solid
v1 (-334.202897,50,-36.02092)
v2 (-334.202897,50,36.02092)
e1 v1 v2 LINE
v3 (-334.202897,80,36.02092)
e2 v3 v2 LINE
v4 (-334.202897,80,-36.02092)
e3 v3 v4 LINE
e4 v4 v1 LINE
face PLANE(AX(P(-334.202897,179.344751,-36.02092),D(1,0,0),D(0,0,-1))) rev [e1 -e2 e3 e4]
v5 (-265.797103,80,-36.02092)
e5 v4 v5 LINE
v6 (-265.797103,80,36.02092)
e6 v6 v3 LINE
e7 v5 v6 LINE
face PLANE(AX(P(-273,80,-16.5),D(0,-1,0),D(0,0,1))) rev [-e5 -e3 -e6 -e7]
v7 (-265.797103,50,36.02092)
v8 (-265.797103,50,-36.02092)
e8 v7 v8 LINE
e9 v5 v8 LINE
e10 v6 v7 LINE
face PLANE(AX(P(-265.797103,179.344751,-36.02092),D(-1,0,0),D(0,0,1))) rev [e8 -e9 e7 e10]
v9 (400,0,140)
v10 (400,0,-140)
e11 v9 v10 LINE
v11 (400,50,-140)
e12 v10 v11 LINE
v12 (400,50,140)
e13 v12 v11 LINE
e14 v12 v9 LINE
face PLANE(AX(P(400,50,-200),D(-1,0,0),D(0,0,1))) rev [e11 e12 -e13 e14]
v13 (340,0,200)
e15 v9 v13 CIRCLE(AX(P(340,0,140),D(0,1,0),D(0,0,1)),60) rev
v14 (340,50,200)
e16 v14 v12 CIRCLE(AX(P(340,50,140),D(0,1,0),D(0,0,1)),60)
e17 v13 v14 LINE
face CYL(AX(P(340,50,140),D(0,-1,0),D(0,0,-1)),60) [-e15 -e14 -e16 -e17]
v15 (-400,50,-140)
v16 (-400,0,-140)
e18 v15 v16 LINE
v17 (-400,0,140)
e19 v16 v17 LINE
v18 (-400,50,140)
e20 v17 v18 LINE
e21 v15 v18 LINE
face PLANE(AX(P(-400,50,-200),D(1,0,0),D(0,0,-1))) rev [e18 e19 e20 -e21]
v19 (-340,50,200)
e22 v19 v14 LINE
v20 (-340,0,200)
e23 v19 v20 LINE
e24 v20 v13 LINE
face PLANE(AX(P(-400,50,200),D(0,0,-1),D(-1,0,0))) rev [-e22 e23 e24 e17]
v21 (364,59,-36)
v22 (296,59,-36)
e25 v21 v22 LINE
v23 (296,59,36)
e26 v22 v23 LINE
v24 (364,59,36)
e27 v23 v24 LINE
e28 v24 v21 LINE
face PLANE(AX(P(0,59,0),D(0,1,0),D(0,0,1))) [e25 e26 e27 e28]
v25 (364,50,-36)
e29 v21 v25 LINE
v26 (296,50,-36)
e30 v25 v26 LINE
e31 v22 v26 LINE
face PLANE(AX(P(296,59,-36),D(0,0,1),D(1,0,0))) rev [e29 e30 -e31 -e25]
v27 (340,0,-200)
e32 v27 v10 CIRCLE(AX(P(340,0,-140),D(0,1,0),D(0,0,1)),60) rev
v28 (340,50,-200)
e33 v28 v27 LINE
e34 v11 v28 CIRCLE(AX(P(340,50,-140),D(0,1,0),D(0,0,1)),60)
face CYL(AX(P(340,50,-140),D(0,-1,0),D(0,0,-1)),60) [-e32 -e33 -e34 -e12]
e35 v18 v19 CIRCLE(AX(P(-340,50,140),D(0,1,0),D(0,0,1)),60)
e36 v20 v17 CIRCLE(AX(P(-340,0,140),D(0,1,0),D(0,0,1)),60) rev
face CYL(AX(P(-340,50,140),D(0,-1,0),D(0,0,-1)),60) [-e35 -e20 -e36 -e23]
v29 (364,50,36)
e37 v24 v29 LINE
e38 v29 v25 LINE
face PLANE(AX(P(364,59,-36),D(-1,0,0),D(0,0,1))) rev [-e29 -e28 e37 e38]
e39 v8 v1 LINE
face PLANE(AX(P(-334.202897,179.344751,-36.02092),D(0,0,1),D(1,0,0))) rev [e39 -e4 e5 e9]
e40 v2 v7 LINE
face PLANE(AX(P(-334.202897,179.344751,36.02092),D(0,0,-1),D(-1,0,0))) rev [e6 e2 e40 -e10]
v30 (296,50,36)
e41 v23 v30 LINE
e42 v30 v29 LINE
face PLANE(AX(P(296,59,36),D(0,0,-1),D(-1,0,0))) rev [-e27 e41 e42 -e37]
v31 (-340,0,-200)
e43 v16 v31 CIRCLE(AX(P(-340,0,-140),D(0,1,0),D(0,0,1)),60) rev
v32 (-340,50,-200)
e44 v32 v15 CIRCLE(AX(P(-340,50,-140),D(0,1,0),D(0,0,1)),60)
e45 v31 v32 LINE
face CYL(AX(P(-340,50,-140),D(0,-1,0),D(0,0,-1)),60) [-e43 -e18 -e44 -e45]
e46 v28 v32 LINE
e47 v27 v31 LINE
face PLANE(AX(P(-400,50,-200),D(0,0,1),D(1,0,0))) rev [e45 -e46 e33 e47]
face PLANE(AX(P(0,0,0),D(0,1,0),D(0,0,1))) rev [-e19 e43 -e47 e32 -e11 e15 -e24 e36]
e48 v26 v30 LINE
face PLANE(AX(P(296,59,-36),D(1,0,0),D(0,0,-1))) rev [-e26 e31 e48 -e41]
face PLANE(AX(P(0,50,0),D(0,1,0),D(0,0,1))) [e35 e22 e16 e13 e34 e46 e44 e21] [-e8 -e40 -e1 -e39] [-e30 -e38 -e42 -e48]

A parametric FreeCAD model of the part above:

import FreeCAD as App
import Part
import Sketcher

V = App.Vector
Q = App.Units.Quantity


def edges_at(feature, points):
    """Names of the edges that pass closest to the given points."""
    edges = feature.Shape.Edges
    near = lambda p: min(range(len(edges)), key=lambda i: edges[i].distToShape(Part.Vertex(*p))[0])
    return sorted({f"Edge{near(p) + 1}" for p in points})


def add_polygon(sketch, points):
    """Adds a closed chain of lines whose ends are joined by coincident constraints."""
    first, n = sketch.GeometryCount, len(points)
    for a, b in zip(points, points[1:] + points[:1]):
        sketch.addGeometry(Part.LineSegment(App.Vector(*a, 0), App.Vector(*b, 0)), False)
    for i in range(n):
        sketch.addConstraint(Sketcher.Constraint("Coincident", first + i, 2, first + (i + 1) % n, 1))

doc = App.newDocument("Part")
body = doc.addObject("PartDesign::Body", "Body")

# Sketch on XZ plane
sketch1 = doc.addObject("Sketcher::SketchObject", "Sketch")
body.addObject(sketch1)
sketch1.AttachmentSupport = (doc.XZ_Plane, [""])
sketch1.MapMode = "FlatFace"
add_polygon(sketch1, [(-400, -200), (-400, 200), (400, 200), (400, -200)])  # lines 0-3
sketch1.addConstraint([
    Sketcher.Constraint("Vertical", 0),
    Sketcher.Constraint("Horizontal", 1),
    Sketcher.Constraint("Vertical", 2),
    Sketcher.Constraint("Horizontal", 3),
    Sketcher.Constraint("Symmetric", 0, 2, 2, 2, -1, 1),
    Sketcher.Constraint("DistanceX", 1, 1, 1, 2, Q("800 mm")),
    Sketcher.Constraint("DistanceY", 0, 1, 0, 2, Q("400 mm")),
])
pad1 = doc.addObject("PartDesign::Pad", "Pad")
body.addObject(pad1)
pad1.Profile = sketch1
pad1.Length = 50
pad1.Reversed = True
doc.recompute()

fillet = doc.addObject("PartDesign::Fillet", "Fillet")
body.addObject(fillet)
fillet.Base = (pad1, edges_at(pad1, [
    (400, 25, 200),
    (-400, 25, 200),
    (-400, 25, -200),
    (400, 25, -200),
]))
fillet.Radius = 60

# Sketch on XZ plane
sketch2 = doc.addObject("Sketcher::SketchObject", "Sketch001")
body.addObject(sketch2)
sketch2.AttachmentSupport = (doc.XZ_Plane, [""])
sketch2.MapMode = "FlatFace"
sketch2.AttachmentOffset = App.Placement(V(0, 0, -50), App.Rotation())
add_polygon(sketch2, [(-334, -36), (-334, 36), (-266, 36), (-266, -36)])  # lines 0-3
sketch2.addConstraint([
    Sketcher.Constraint("Vertical", 0),
    Sketcher.Constraint("Horizontal", 1),
    Sketcher.Constraint("Vertical", 2),
    Sketcher.Constraint("Horizontal", 3),
    Sketcher.Constraint("DistanceY", 0, 1, 0, 2, Q("72.041841 mm")),
    Sketcher.Constraint("DistanceX", 1, 1, 1, 2, Q("68.405794 mm")),
    Sketcher.Constraint("DistanceY", -1, 1, 0, 2, Q("36.02092 mm")),
    Sketcher.Constraint("DistanceX", 0, 2, -1, 1, Q("334.202897 mm")),
])
pad2 = doc.addObject("PartDesign::Pad", "Pad001")
body.addObject(pad2)
pad2.Profile = sketch2
pad2.Length = 30
pad2.Reversed = True

# Sketch on XZ plane
sketch3 = doc.addObject("Sketcher::SketchObject", "Sketch002")
body.addObject(sketch3)
sketch3.AttachmentSupport = (doc.XZ_Plane, [""])
sketch3.MapMode = "FlatFace"
sketch3.AttachmentOffset = App.Placement(V(0, 0, -50), App.Rotation())
add_polygon(sketch3, [(296, -36), (296, 36), (364, 36), (364, -36)])  # lines 0-3
sketch3.addConstraint([
    Sketcher.Constraint("Vertical", 0),
    Sketcher.Constraint("Horizontal", 1),
    Sketcher.Constraint("Vertical", 2),
    Sketcher.Constraint("Horizontal", 3),
    Sketcher.Constraint("DistanceX", 1, 1, 1, 2, Q("68 mm")),
    Sketcher.Constraint("DistanceY", 0, 1, 0, 2, Q("72 mm")),
    Sketcher.Constraint("DistanceX", -1, 1, 0, 2, Q("296 mm")),
    Sketcher.Constraint("DistanceY", -1, 1, 0, 2, Q("36 mm")),
])
pad3 = doc.addObject("PartDesign::Pad", "Pad002")
body.addObject(pad3)
pad3.Profile = sketch3
pad3.Length = 9
pad3.Reversed = True

doc.recompute()
